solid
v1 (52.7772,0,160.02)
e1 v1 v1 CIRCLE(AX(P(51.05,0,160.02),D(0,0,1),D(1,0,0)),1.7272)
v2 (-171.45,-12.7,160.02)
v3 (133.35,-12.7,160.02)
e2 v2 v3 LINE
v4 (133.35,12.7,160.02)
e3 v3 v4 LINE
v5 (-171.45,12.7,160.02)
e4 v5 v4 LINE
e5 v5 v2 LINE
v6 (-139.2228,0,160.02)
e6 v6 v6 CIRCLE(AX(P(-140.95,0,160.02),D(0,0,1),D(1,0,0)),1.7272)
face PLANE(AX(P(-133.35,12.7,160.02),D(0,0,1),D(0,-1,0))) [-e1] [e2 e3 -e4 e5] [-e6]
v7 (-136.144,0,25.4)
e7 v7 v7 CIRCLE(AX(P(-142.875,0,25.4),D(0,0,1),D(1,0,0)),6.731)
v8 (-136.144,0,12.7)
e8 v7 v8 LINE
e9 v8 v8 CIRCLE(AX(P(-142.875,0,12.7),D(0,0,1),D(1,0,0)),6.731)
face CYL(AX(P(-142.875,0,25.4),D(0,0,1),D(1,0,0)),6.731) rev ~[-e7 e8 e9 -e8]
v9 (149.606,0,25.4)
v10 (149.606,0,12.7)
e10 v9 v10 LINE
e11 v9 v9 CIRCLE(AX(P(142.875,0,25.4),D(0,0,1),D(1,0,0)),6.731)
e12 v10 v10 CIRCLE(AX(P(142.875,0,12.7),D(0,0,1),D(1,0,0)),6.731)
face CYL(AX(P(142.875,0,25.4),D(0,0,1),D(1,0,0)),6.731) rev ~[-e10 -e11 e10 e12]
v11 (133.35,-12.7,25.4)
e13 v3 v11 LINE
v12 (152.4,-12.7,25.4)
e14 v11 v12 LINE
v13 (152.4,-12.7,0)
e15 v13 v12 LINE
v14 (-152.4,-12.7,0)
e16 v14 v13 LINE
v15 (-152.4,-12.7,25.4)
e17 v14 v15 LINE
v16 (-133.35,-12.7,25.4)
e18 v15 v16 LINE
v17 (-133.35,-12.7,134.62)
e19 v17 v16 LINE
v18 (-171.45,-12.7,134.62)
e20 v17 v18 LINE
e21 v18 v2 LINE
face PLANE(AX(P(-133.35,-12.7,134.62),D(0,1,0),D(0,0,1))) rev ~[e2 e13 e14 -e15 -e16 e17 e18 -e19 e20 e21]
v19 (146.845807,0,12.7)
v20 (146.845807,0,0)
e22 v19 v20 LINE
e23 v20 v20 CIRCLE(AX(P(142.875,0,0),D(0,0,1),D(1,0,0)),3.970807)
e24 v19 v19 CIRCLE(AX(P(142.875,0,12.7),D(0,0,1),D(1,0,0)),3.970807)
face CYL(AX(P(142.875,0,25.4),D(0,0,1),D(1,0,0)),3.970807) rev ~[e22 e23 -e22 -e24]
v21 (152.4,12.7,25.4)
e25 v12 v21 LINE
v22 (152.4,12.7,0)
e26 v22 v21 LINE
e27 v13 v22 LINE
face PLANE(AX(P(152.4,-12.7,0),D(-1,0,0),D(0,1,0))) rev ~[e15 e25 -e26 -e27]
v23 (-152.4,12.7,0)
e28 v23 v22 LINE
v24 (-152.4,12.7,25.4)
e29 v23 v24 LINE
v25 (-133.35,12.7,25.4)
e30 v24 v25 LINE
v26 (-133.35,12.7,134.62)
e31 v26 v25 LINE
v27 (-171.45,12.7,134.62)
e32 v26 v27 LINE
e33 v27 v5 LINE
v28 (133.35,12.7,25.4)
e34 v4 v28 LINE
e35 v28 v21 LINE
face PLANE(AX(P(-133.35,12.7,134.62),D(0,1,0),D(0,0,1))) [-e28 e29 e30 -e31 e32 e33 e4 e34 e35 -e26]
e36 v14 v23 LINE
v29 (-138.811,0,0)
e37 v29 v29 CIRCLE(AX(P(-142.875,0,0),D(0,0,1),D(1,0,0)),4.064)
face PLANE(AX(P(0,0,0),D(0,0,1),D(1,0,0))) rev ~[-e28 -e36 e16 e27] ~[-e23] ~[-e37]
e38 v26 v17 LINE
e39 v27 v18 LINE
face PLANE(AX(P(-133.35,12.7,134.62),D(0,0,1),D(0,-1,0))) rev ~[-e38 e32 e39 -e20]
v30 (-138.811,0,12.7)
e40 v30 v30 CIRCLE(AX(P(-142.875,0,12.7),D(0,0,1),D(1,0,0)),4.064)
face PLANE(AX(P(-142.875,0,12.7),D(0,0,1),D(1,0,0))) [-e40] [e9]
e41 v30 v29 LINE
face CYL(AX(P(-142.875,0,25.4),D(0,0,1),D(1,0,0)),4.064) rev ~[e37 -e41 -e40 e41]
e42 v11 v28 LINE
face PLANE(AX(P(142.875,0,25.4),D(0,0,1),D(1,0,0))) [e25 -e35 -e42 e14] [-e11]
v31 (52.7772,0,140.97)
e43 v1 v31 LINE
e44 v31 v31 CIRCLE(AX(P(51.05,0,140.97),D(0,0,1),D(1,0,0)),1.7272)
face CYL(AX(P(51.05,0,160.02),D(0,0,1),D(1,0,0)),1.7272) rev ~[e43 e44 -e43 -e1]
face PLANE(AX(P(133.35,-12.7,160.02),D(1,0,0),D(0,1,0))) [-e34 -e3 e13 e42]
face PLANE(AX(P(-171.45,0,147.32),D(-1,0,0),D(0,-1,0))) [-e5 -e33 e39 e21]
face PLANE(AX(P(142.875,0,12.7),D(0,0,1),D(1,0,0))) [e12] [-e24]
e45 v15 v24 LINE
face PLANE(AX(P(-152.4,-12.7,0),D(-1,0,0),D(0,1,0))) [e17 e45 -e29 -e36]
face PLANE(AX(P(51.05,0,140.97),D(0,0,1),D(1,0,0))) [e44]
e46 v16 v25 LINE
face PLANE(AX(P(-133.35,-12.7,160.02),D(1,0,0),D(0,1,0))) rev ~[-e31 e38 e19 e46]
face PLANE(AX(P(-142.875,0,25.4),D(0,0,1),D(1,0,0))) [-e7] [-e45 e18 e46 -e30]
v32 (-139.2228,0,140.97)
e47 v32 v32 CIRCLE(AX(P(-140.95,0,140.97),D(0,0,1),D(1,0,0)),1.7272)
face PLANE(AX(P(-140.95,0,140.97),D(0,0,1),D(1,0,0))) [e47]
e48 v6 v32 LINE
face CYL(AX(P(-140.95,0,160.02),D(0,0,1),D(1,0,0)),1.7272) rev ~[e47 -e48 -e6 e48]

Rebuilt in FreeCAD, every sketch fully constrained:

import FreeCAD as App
import Part
import Sketcher
from FreeCAD import Vector
Q = App.Units.Quantity

doc = App.newDocument("Part")
body = doc.addObject("PartDesign::Body", "Body")

sketch1 = body.newObject("Sketcher::SketchObject", "Sketch")
sketch1.AttachmentSupport = (doc.getObject("XY_Plane"), [""])
sketch1.MapMode = "FlatFace"
sketch1.addGeometry(Part.LineSegment(Vector(-152, 13, 0), Vector(-152, -13, 0)), False)
sketch1.addGeometry(Part.LineSegment(Vector(-152, -13, 0), Vector(152, -13, 0)), False)
sketch1.addGeometry(Part.LineSegment(Vector(152, -13, 0), Vector(152, 13, 0)), False)
sketch1.addGeometry(Part.LineSegment(Vector(152, 13, 0), Vector(-152, 13, 0)), False)
sketch1.addConstraint(Sketcher.Constraint("Coincident", 0, 2, 1, 1))
sketch1.addConstraint(Sketcher.Constraint("Coincident", 1, 2, 2, 1))
sketch1.addConstraint(Sketcher.Constraint("Coincident", 2, 2, 3, 1))
sketch1.addConstraint(Sketcher.Constraint("Coincident", 3, 2, 0, 1))
sketch1.addConstraint(Sketcher.Constraint("Vertical", 0))
sketch1.addConstraint(Sketcher.Constraint("Horizontal", 1))
sketch1.addConstraint(Sketcher.Constraint("Vertical", 2))
sketch1.addConstraint(Sketcher.Constraint("Horizontal", 3))
sketch1.addConstraint(Sketcher.Constraint("Symmetric", 0, 2, 2, 2, -1, 1))
sketch1.addConstraint(Sketcher.Constraint("DistanceX", 1, 1, 1, 2, Q("12 in")))
sketch1.addConstraint(Sketcher.Constraint("DistanceY", 0, 2, 0, 1, Q("1 in")))
pad1 = body.newObject("PartDesign::Pad", "Pad")
pad1.Profile = sketch1
pad1.Length = Q("6.3 in")

sketch2 = body.newObject("Sketcher::SketchObject", "Sketch001")
sketch2.AttachmentSupport = (doc.getObject("XY_Plane"), [""])
sketch2.MapMode = "FlatFace"
sketch2.AttachmentOffset = App.Placement(Vector(0, 0, 6.3 * 25.4), App.Rotation())
sketch2.addGeometry(Part.LineSegment(Vector(-152, 13, 0), Vector(-152, -13, 0)), False)
sketch2.addGeometry(Part.LineSegment(Vector(-152, -13, 0), Vector(-133, -13, 0)), False)
sketch2.addGeometry(Part.LineSegment(Vector(-133, -13, 0), Vector(-133, 13, 0)), False)
sketch2.addGeometry(Part.LineSegment(Vector(-133, 13, 0), Vector(-152, 13, 0)), False)
sketch2.addGeometry(Part.LineSegment(Vector(133, 13, 0), Vector(133, -13, 0)), False)
sketch2.addGeometry(Part.LineSegment(Vector(133, -13, 0), Vector(152, -13, 0)), False)
sketch2.addGeometry(Part.LineSegment(Vector(152, -13, 0), Vector(152, 13, 0)), False)
sketch2.addGeometry(Part.LineSegment(Vector(152, 13, 0), Vector(133, 13, 0)), False)
sketch2.addConstraint(Sketcher.Constraint("Coincident", 0, 2, 1, 1))
sketch2.addConstraint(Sketcher.Constraint("Coincident", 1, 2, 2, 1))
sketch2.addConstraint(Sketcher.Constraint("Coincident", 2, 2, 3, 1))
sketch2.addConstraint(Sketcher.Constraint("Coincident", 3, 2, 0, 1))
sketch2.addConstraint(Sketcher.Constraint("Coincident", 4, 2, 5, 1))
sketch2.addConstraint(Sketcher.Constraint("Coincident", 5, 2, 6, 1))
sketch2.addConstraint(Sketcher.Constraint("Coincident", 6, 2, 7, 1))
sketch2.addConstraint(Sketcher.Constraint("Coincident", 7, 2, 4, 1))
sketch2.addConstraint(Sketcher.Constraint("Vertical", 0))
sketch2.addConstraint(Sketcher.Constraint("Horizontal", 1))
sketch2.addConstraint(Sketcher.Constraint("Vertical", 2))
sketch2.addConstraint(Sketcher.Constraint("Horizontal", 3))
sketch2.addConstraint(Sketcher.Constraint("Vertical", 4))
sketch2.addConstraint(Sketcher.Constraint("Horizontal", 5))
sketch2.addConstraint(Sketcher.Constraint("Vertical", 6))
sketch2.addConstraint(Sketcher.Constraint("Horizontal", 7))
sketch2.addConstraint(Sketcher.Constraint("Symmetric", 2, 2, 4, 2, -1, 1))
sketch2.addConstraint(Sketcher.Constraint("Symmetric", 0, 2, 6, 2, -1, 1))
sketch2.addConstraint(Sketcher.Constraint("Horizontal", 1, 2, 4, 2))
sketch2.addConstraint(Sketcher.Constraint("DistanceY", 0, 2, 0, 1, Q("1 in")))
sketch2.addConstraint(Sketcher.Constraint("DistanceX", 0, 2, -1, 1, Q("6 in")))
sketch2.addConstraint(Sketcher.Constraint("DistanceX", 1, 1, 1, 2, Q("0.75 in")))
pocket1 = body.newObject("PartDesign::Pocket", "Pocket")
pocket1.Profile = sketch2
pocket1.Length = Q("5.3 in")

sketch3 = body.newObject("Sketcher::SketchObject", "Sketch002")
sketch3.AttachmentSupport = (doc.getObject("XY_Plane"), [""])
sketch3.MapMode = "FlatFace"
sketch3.AttachmentOffset = App.Placement(Vector(0, 0, 1 * 25.4), App.Rotation())
sketch3.addGeometry(Part.Circle(Vector(142.9, 0, 0), Vector(0, 0, 1), 4), False)
sketch3.addGeometry(Part.Circle(Vector(-142.9, 0, 0), Vector(0, 0, 1), 4.1), False)
sketch3.addConstraint(Sketcher.Constraint("Symmetric", 0, 3, 1, 3, -1, 1))
sketch3.addConstraint(Sketcher.Constraint("PointOnObject", 0, 3, -1))
sketch3.addConstraint(Sketcher.Constraint("Diameter", 1, Q("0.32 in")))
sketch3.addConstraint(Sketcher.Constraint("DistanceX", 1, 3, 0, 3, Q("11.25 in")))
sketch3.addConstraint(Sketcher.Constraint("Diameter", 0, 7.941614))
pocket2 = body.newObject("PartDesign::Pocket", "Pocket001")
pocket2.Profile = sketch3
pocket2.Type = "ThroughAll"

sketch4 = body.newObject("Sketcher::SketchObject", "Sketch003")
sketch4.AttachmentSupport = (doc.getObject("XY_Plane"), [""])
sketch4.MapMode = "FlatFace"
sketch4.AttachmentOffset = App.Placement(Vector(0, 0, 1 * 25.4), App.Rotation())
sketch4.addGeometry(Part.Circle(Vector(-142.9, 0, 0), Vector(0, 0, 1), 6.7), False)
sketch4.addGeometry(Part.Circle(Vector(-142.9, 0, 0), Vector(0, 0, 1), 4.1), False)
sketch4.addGeometry(Part.Circle(Vector(142.9, 0, 0), Vector(0, 0, 1), 6.7), False)
sketch4.addGeometry(Part.Circle(Vector(142.9, 0, 0), Vector(0, 0, 1), 4), False)
sketch4.addConstraint(Sketcher.Constraint("Coincident", 1, 3, 0, 3))
sketch4.addConstraint(Sketcher.Constraint("Coincident", 3, 3, 2, 3))
sketch4.addConstraint(Sketcher.Constraint("Equal", 0, 2))
sketch4.addConstraint(Sketcher.Constraint("Symmetric", 0, 3, 2, 3, -1, 1))
sketch4.addConstraint(Sketcher.Constraint("PointOnObject", 0, 3, -1))
sketch4.addConstraint(Sketcher.Constraint("Diameter", 0, Q("0.53 in")))
sketch4.addConstraint(Sketcher.Constraint("Diameter", 1, Q("0.32 in")))
sketch4.addConstraint(Sketcher.Constraint("DistanceX", 0, 3, 2, 3, Q("11.25 in")))
sketch4.addConstraint(Sketcher.Constraint("Diameter", 3, 7.941614))
pocket3 = body.newObject("PartDesign::Pocket", "Pocket002")
pocket3.Profile = sketch4
pocket3.Length = Q("0.5 in")

sketch5 = body.newObject("Sketcher::SketchObject", "Sketch004")
sketch5.AttachmentSupport = (doc.getObject("YZ_Plane"), [""])
sketch5.MapMode = "FlatFace"
sketch5.AttachmentOffset = App.Placement(Vector(0, 0, -5.25 * 25.4), App.Rotation())
sketch5.addGeometry(Part.LineSegment(Vector(13, 160, 0), Vector(13, 135, 0)), False)
sketch5.addGeometry(Part.LineSegment(Vector(13, 135, 0), Vector(-13, 135, 0)), False)
sketch5.addGeometry(Part.LineSegment(Vector(-13, 135, 0), Vector(-13, 160, 0)), False)
sketch5.addGeometry(Part.LineSegment(Vector(-13, 160, 0), Vector(13, 160, 0)), False)
sketch5.addConstraint(Sketcher.Constraint("Coincident", 0, 2, 1, 1))
sketch5.addConstraint(Sketcher.Constraint("Coincident", 1, 2, 2, 1))
sketch5.addConstraint(Sketcher.Constraint("Coincident", 2, 2, 3, 1))
sketch5.addConstraint(Sketcher.Constraint("Coincident", 3, 2, 0, 1))
sketch5.addConstraint(Sketcher.Constraint("Vertical", 0))
sketch5.addConstraint(Sketcher.Constraint("Horizontal", 1))
sketch5.addConstraint(Sketcher.Constraint("Vertical", 2))
sketch5.addConstraint(Sketcher.Constraint("Horizontal", 3))
sketch5.addConstraint(Sketcher.Constraint("Equal", 3, 0))
sketch5.addConstraint(Sketcher.Constraint("DistanceX", 1, 2, 1, 1, Q("1 in")))
sketch5.addConstraint(Sketcher.Constraint("DistanceX", -1, 1, 0, 2, Q("0.5 in")))
sketch5.addConstraint(Sketcher.Constraint("DistanceY", -1, 1, 0, 2, Q("5.3 in")))
pad2 = body.newObject("PartDesign::Pad", "Pad001")
pad2.Profile = sketch5
pad2.Length = Q("1.5 in")
pad2.Reversed = True

sketch6 = body.newObject("Sketcher::SketchObject", "Sketch005")
sketch6.AttachmentSupport = (doc.getObject("XY_Plane"), [""])
sketch6.MapMode = "FlatFace"
sketch6.AttachmentOffset = App.Placement(Vector(0, 0, 6.3 * 25.4), App.Rotation())
sketch6.addGeometry(Part.Circle(Vector(-140.9, 0, 0), Vector(0, 0, 1), 1.7), False)
sketch6.addGeometry(Part.Circle(Vector(51, 0, 0), Vector(0, 0, 1), 1.7), False)
sketch6.addConstraint(Sketcher.Constraint("Equal", 0, 1))
sketch6.addConstraint(Sketcher.Constraint("PointOnObject", 0, 3, -1))
sketch6.addConstraint(Sketcher.Constraint("PointOnObject", 1, 3, -1))
sketch6.addConstraint(Sketcher.Constraint("Diameter", 0, Q("0.136 in")))
sketch6.addConstraint(Sketcher.Constraint("DistanceX", 0, 3, -1, 1, 140.95))
sketch6.addConstraint(Sketcher.Constraint("DistanceX", -1, 1, 1, 3, 51.05))
pocket4 = body.newObject("PartDesign::Pocket", "Pocket003")
pocket4.Profile = sketch6
pocket4.Length = Q("0.75 in")

doc.recompute()
